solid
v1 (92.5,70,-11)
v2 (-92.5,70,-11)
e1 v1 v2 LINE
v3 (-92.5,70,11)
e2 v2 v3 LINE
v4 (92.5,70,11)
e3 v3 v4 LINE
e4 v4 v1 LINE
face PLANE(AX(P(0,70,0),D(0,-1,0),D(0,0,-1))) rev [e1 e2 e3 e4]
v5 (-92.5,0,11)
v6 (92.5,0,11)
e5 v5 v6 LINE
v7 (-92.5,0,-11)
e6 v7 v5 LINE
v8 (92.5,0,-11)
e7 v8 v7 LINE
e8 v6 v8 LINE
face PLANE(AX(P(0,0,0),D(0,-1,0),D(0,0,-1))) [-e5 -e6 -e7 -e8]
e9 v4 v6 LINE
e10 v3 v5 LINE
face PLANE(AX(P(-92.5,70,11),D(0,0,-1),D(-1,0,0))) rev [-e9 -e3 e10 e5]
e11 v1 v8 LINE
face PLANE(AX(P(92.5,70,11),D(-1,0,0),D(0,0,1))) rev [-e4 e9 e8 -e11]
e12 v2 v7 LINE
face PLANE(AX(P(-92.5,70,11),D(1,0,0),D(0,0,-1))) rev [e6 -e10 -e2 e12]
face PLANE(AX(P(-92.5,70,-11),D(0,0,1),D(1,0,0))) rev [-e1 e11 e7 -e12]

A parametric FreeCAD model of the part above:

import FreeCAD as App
import Part
import Sketcher
Q = App.Units.Quantity


def add_polygon(sketch, points):
    """Adds a closed chain of lines whose ends are joined by coincident constraints."""
    first, n = sketch.GeometryCount, len(points)
    for a, b in zip(points, points[1:] + points[:1]):
        sketch.addGeometry(Part.LineSegment(App.Vector(*a, 0), App.Vector(*b, 0)), False)
    for i in range(n):
        sketch.addConstraint(Sketcher.Constraint("Coincident", first + i, 2, first + (i + 1) % n, 1))

doc = App.newDocument("Part")
params = doc.addObject("Spreadsheet::Sheet", "Params")
for row, (alias, value) in enumerate([
    ("sketch1_width", "185 mm"),
    ("sketch1_height", "22 mm"),
    ("pad1_length", "70 mm"),
], start=1):
    params.set(f"A{row}", alias)
    params.set(f"B{row}", "=" + value)
    params.setAlias(f"B{row}", alias)

body = doc.addObject("PartDesign::Body", "Body")

sketch1 = body.newObject("Sketcher::SketchObject", "Sketch")
sketch1.AttachmentSupport = (doc.getObject("XZ_Plane"), [""])
sketch1.MapMode = "FlatFace"
add_polygon(sketch1, [(-92, -11), (-92, 11), (92, 11), (92, -11)])
sketch1.addConstraint(Sketcher.Constraint("Vertical", 0))
sketch1.addConstraint(Sketcher.Constraint("Horizontal", 1))
sketch1.addConstraint(Sketcher.Constraint("Vertical", 2))
sketch1.addConstraint(Sketcher.Constraint("Horizontal", 3))
sketch1.addConstraint(Sketcher.Constraint("Symmetric", 0, 2, 2, 2, -1, 1))
sketch1.addConstraint(Sketcher.Constraint("DistanceX", 1, 1, 1, 2, Q("185 mm")))
sketch1.addConstraint(Sketcher.Constraint("DistanceY", 0, 1, 0, 2, Q("22 mm")))
sketch1.setExpression("Constraints[9]", "Params.sketch1_width")
sketch1.setExpression("Constraints[10]", "Params.sketch1_height")
pad1 = body.newObject("PartDesign::Pad", "Pad")
pad1.Profile = sketch1
pad1.setExpression("Length", "Params.pad1_length")
pad1.Reversed = True

doc.recompute()
